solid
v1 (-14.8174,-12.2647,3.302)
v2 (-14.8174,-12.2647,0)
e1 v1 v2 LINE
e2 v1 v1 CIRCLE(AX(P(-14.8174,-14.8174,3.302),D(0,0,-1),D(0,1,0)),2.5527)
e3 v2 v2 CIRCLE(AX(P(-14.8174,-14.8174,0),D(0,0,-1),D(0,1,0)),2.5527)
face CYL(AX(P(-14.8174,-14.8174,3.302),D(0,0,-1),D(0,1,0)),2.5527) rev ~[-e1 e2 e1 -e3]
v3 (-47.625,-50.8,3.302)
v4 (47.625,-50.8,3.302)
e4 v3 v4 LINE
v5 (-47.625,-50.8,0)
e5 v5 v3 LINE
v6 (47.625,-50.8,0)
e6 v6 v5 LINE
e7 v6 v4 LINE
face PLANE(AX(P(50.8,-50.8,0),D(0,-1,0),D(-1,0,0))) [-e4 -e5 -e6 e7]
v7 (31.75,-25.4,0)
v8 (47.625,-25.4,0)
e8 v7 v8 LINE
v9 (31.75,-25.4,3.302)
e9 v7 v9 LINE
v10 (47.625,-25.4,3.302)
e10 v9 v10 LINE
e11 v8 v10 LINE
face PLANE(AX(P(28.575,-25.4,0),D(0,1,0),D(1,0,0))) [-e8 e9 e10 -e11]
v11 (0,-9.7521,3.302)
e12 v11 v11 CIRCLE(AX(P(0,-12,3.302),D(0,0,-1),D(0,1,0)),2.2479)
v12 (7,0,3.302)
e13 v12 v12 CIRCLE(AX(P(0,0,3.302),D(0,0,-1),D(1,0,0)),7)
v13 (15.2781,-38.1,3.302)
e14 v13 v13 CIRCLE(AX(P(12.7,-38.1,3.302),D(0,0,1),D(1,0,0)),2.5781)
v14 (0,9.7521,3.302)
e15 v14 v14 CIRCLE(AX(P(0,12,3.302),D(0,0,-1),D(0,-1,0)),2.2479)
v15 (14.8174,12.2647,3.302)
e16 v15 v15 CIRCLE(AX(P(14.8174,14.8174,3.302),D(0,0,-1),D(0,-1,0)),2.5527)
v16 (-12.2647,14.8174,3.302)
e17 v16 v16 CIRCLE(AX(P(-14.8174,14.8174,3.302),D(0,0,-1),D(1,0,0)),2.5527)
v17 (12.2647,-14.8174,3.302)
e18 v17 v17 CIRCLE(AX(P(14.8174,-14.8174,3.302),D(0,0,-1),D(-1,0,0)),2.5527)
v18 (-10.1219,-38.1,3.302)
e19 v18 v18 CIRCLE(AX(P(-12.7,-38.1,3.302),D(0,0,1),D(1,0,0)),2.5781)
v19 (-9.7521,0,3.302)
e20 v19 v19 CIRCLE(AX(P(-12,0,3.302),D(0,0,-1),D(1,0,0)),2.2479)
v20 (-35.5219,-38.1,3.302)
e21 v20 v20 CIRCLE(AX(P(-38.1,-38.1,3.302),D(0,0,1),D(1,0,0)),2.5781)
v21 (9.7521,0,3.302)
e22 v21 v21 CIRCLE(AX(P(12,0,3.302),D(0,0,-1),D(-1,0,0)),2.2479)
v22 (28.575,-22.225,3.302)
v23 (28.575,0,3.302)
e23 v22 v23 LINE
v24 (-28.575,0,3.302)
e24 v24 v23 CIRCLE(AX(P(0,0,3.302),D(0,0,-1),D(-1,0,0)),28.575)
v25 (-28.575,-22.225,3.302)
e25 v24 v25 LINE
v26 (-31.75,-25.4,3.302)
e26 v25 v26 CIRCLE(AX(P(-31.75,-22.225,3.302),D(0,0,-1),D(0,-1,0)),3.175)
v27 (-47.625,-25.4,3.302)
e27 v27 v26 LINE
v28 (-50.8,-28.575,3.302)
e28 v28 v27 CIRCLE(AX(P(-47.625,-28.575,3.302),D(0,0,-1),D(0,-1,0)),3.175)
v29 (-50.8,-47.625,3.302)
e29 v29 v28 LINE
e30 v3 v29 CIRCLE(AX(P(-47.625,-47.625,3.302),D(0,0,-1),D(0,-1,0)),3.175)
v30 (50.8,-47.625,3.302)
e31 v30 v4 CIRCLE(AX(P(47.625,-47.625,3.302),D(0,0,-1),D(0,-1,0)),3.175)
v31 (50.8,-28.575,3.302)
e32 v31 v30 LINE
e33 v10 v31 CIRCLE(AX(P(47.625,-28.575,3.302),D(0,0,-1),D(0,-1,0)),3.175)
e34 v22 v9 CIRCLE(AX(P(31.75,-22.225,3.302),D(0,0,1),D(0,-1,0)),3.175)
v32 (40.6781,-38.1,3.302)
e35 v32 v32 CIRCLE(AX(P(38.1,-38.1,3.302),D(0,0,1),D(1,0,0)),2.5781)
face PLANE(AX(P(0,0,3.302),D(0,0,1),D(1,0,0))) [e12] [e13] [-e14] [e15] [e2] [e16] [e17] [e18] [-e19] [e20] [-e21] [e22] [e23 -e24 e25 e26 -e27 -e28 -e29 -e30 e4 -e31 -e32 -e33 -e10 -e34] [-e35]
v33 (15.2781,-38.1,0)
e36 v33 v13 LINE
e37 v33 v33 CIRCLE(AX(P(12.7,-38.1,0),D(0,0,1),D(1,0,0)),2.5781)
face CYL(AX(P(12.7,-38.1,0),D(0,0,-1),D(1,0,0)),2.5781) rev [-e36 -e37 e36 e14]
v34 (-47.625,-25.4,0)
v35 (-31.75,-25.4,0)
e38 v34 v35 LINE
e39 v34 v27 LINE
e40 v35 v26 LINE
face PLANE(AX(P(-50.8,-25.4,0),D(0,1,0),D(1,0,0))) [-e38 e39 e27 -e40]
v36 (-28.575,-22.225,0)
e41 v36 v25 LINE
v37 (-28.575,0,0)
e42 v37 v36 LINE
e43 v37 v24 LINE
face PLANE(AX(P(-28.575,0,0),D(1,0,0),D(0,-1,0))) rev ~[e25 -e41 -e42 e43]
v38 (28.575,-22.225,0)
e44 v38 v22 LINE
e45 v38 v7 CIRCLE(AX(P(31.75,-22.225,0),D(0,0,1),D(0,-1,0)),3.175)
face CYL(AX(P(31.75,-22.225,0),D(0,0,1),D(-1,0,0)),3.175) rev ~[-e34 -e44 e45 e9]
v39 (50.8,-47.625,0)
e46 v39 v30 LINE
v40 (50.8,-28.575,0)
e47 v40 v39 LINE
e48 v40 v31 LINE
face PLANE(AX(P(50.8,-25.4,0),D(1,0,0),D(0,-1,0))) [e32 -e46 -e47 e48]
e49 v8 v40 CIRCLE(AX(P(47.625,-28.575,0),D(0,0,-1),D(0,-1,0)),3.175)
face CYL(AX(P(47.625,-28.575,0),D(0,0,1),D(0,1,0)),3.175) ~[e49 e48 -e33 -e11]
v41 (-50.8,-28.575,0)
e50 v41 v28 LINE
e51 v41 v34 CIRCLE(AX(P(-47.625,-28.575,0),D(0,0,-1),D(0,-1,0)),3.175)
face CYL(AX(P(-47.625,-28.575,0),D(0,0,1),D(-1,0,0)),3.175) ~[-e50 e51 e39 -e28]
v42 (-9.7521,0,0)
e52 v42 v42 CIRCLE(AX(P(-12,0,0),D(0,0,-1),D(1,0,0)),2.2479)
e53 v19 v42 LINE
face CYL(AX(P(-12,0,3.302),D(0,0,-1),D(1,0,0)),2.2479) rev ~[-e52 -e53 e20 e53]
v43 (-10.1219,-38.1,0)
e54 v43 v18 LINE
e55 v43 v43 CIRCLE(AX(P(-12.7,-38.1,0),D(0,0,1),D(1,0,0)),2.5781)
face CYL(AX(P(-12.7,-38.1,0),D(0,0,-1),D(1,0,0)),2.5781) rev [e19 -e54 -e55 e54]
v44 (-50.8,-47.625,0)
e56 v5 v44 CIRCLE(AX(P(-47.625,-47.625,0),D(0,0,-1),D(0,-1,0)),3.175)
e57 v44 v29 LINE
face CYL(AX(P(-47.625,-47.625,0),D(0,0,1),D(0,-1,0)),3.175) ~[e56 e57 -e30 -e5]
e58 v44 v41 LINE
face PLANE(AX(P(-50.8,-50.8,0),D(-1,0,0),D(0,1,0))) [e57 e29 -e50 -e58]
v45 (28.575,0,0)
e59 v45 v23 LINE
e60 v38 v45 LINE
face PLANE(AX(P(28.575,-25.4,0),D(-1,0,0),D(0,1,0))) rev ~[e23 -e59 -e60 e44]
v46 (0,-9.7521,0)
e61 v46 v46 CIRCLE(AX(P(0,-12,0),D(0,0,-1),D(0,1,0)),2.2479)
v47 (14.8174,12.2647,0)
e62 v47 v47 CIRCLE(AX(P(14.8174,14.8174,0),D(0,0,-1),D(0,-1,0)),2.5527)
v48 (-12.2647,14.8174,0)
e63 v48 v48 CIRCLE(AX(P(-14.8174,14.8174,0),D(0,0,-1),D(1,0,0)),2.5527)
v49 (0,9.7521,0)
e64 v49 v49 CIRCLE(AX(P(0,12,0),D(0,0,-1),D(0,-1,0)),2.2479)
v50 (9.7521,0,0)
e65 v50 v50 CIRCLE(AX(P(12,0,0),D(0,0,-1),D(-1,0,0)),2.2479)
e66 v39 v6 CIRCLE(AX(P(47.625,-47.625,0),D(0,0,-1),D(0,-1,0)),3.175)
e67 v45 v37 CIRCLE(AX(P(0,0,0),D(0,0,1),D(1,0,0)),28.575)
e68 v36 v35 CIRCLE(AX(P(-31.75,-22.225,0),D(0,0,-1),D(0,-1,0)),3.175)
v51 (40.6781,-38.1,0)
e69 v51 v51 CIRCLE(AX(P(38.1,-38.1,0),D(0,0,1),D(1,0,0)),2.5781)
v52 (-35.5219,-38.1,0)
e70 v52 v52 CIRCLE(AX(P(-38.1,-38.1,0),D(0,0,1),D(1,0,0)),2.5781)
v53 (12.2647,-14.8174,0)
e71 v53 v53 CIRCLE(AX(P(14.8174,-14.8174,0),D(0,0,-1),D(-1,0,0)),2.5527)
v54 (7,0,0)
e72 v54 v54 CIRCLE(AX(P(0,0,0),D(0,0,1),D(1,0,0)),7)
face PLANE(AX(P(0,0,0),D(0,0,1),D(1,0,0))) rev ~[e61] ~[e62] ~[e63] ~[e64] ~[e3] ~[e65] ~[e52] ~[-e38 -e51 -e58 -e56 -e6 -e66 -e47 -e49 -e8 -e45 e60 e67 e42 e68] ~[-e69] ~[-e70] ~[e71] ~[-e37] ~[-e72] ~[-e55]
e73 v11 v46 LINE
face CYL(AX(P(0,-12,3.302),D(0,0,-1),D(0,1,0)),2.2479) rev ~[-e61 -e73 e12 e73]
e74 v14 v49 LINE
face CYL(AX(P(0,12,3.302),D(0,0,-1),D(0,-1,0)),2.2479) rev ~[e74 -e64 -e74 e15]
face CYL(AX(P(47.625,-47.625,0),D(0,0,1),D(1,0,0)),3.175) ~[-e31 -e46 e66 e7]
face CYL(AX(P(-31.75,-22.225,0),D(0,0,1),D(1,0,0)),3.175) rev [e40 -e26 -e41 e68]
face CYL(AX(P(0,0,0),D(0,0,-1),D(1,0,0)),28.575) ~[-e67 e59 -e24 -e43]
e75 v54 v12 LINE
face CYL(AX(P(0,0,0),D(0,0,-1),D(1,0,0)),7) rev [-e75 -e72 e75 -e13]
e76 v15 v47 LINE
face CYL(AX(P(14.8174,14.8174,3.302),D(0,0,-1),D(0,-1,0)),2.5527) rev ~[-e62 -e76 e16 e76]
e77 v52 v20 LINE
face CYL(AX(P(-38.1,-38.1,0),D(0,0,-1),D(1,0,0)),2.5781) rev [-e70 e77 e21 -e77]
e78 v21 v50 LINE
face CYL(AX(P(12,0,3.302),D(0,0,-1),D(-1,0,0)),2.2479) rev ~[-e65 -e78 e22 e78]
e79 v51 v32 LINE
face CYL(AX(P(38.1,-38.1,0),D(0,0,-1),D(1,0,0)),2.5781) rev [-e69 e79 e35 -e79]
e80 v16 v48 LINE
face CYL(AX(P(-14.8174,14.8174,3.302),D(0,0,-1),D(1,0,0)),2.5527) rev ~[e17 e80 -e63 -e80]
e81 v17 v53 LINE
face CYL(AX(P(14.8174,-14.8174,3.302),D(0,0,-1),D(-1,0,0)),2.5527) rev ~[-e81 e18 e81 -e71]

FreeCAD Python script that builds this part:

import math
import FreeCAD as App
import Part
import Sketcher
Q = App.Units.Quantity


def edges_at(feature, points):
    """Names of the edges that pass closest to the given points."""
    edges = feature.Shape.Edges
    near = lambda p: min(range(len(edges)), key=lambda i: edges[i].distToShape(Part.Vertex(*p))[0])
    return sorted({f"Edge{near(p) + 1}" for p in points})

doc = App.newDocument("Part")
body = doc.addObject("PartDesign::Body", "Body")

# Sketch on XY plane
sketch1 = doc.addObject("Sketcher::SketchObject", "Sketch")
body.addObject(sketch1)
sketch1.AttachmentSupport = (doc.XY_Plane, [""])
sketch1.MapMode = "FlatFace"
sketch1.addGeometry([
    Part.LineSegment(App.Vector(28.6, -25.4, 0), App.Vector(28.6, 0, 0)),  # 0
    Part.ArcOfCircle(Part.Circle(App.Vector(0, 0, 0), App.Vector(0, 0, 1), 28.6), math.radians(0), math.radians(180)),  # 1
    Part.LineSegment(App.Vector(-28.6, 0, 0), App.Vector(-28.6, -25.4, 0)),  # 2
    Part.LineSegment(App.Vector(-28.6, -25.4, 0), App.Vector(-50.8, -25.4, 0)),  # 3
    Part.LineSegment(App.Vector(-50.8, -25.4, 0), App.Vector(-50.8, -50.8, 0)),  # 4
    Part.LineSegment(App.Vector(-50.8, -50.8, 0), App.Vector(50.8, -50.8, 0)),  # 5
    Part.LineSegment(App.Vector(50.8, -50.8, 0), App.Vector(50.8, -25.4, 0)),  # 6
    Part.LineSegment(App.Vector(50.8, -25.4, 0), App.Vector(28.6, -25.4, 0)),  # 7
    Part.Circle(App.Vector(0, 0, 0), App.Vector(0, 0, 1), 7),  # 8
    Part.Circle(App.Vector(12.7, -38.1, 0), App.Vector(0, 0, 1), 2.6),  # 9
    Part.Circle(App.Vector(38.1, -38.1, 0), App.Vector(0, 0, 1), 2.6),  # 10
    Part.Circle(App.Vector(-38.1, -38.1, 0), App.Vector(0, 0, 1), 2.6),  # 11
    Part.Circle(App.Vector(-12.7, -38.1, 0), App.Vector(0, 0, 1), 2.6),  # 12
], False)
sketch1.addConstraint([
    Sketcher.Constraint("Tangent", 0, 2, 1, 1),
    Sketcher.Constraint("Tangent", 1, 2, 2, 1),
    Sketcher.Constraint("Coincident", 2, 2, 3, 1),
    Sketcher.Constraint("Coincident", 3, 2, 4, 1),
    Sketcher.Constraint("Coincident", 4, 2, 5, 1),
    Sketcher.Constraint("Coincident", 5, 2, 6, 1),
    Sketcher.Constraint("Coincident", 6, 2, 7, 1),
    Sketcher.Constraint("Coincident", 7, 2, 0, 1),
    Sketcher.Constraint("Vertical", 0),
    Sketcher.Constraint("Vertical", 2),
    Sketcher.Constraint("Horizontal", 3),
    Sketcher.Constraint("Vertical", 4),
    Sketcher.Constraint("Horizontal", 5),
    Sketcher.Constraint("Vertical", 6),
    Sketcher.Constraint("Horizontal", 7),
    Sketcher.Constraint("Coincident", 1, 3, -1, 1),
    Sketcher.Constraint("Coincident", 8, 3, -1, 1),
    Sketcher.Constraint("Equal", 9, 10),
    Sketcher.Constraint("Equal", 10, 11),
    Sketcher.Constraint("Equal", 11, 12),
    Sketcher.Constraint("Symmetric", 10, 3, 11, 3, -2),
    Sketcher.Constraint("Symmetric", 9, 3, 12, 3, -2),
    Sketcher.Constraint("Symmetric", 3, 2, 6, 2, -2),
    Sketcher.Constraint("Horizontal", 9, 3, 10, 3),
    Sketcher.Constraint("Equal", 2, 4),
    Sketcher.Constraint("DistanceX", 5, 1, 5, 2, Q("4 in")),
    Sketcher.Constraint("DistanceY", 0, 1, 0, 2, Q("1 in")),
    Sketcher.Constraint("Diameter", 9, Q("0.203 in")),
    Sketcher.Constraint("Radius", 1, Q("1.125 in")),
    Sketcher.Constraint("DistanceX", 9, 3, 10, 3, Q("1 in")),
    Sketcher.Constraint("DistanceX", 11, 3, 9, 3, Q("2 in")),
    Sketcher.Constraint("DistanceY", 11, 3, 2, 2, Q("0.5 in")),
    Sketcher.Constraint("Diameter", 8, Q("14 mm")),
])
pad1 = doc.addObject("PartDesign::Pad", "Pad")
body.addObject(pad1)
pad1.Profile = sketch1
pad1.Length = Q("0.13 in")
doc.recompute()

fillet = doc.addObject("PartDesign::Fillet", "Fillet")
body.addObject(fillet)
fillet.Base = (pad1, edges_at(pad1, [
    (28.575, -25.4, 1.651),
    (-28.575, -25.4, 1.651),
    (-50.8, -25.4, 1.651),
    (-50.8, -50.8, 1.651),
    (50.8, -25.4, 1.651),
    (50.8, -50.8, 1.651),
]))
fillet.Radius = Q("0.125 in")

# Sketch on XY plane
sketch2 = doc.addObject("Sketcher::SketchObject", "Sketch001")
body.addObject(sketch2)
sketch2.AttachmentSupport = (doc.XY_Plane, [""])
sketch2.MapMode = "FlatFace"
sketch2.AttachmentOffset = App.Placement(App.Vector(0, 0, 0.13 * 25.4), App.Rotation())
sketch2.addGeometry(Part.Circle(App.Vector(14.8, 14.8, 0), App.Vector(0, 0, 1), 2.6), False)
sketch2.addConstraint([
    Sketcher.Constraint("Diameter", 0, Q("0.201 in")),
    Sketcher.Constraint("DistanceX", -1, 1, 0, 3, Q("14.8174 mm")),
    Sketcher.Constraint("DistanceY", -1, 1, 0, 3, Q("14.8174 mm")),
])
doc.recompute()
hole = doc.addObject("PartDesign::Hole", "Hole")
body.addObject(hole)
hole.Profile = sketch2
hole.ThreadType = "None"
hole.Diameter = Q("0.201 in")
hole.DepthType = "Dimension"
hole.Depth = Q("0.64 in")
hole.DrillPoint = "Angled"
hole.DrillPointAngle = 118
doc.recompute()

polarpattern = doc.addObject("PartDesign::PolarPattern", "PolarPattern")
body.addObject(polarpattern)
polarpattern.Originals = [hole]
polarpattern.Axis = (doc.Z_Axis, [""])
polarpattern.Angle = 360
polarpattern.Occurrences = 4
body.Tip = polarpattern

# Sketch on XY plane
sketch3 = doc.addObject("Sketcher::SketchObject", "Sketch002")
body.addObject(sketch3)
sketch3.AttachmentSupport = (doc.XY_Plane, [""])
sketch3.MapMode = "FlatFace"
sketch3.AttachmentOffset = App.Placement(App.Vector(0, 0, 0.13 * 25.4), App.Rotation())
sketch3.addGeometry(Part.Circle(App.Vector(0, 12, 0), App.Vector(0, 0, 1), 2.2), False)
sketch3.addConstraint([
    Sketcher.Constraint("PointOnObject", 0, 3, -2),
    Sketcher.Constraint("Diameter", 0, Q("0.177 in")),
    Sketcher.Constraint("DistanceY", -1, 1, 0, 3, Q("12 mm")),
])
doc.recompute()
hole2 = doc.addObject("PartDesign::Hole", "Hole001")
body.addObject(hole2)
hole2.Profile = sketch3
hole2.ThreadType = "None"
hole2.Diameter = Q("0.177 in")
hole2.DepthType = "Dimension"
hole2.Depth = Q("0.64 in")
hole2.DrillPoint = "Angled"
hole2.DrillPointAngle = 118
doc.recompute()

polarpattern2 = doc.addObject("PartDesign::PolarPattern", "PolarPattern001")
body.addObject(polarpattern2)
polarpattern2.Originals = [hole2]
polarpattern2.Axis = (doc.Z_Axis, [""])
polarpattern2.Angle = 360
polarpattern2.Occurrences = 4
body.Tip = polarpattern2

doc.recompute()
